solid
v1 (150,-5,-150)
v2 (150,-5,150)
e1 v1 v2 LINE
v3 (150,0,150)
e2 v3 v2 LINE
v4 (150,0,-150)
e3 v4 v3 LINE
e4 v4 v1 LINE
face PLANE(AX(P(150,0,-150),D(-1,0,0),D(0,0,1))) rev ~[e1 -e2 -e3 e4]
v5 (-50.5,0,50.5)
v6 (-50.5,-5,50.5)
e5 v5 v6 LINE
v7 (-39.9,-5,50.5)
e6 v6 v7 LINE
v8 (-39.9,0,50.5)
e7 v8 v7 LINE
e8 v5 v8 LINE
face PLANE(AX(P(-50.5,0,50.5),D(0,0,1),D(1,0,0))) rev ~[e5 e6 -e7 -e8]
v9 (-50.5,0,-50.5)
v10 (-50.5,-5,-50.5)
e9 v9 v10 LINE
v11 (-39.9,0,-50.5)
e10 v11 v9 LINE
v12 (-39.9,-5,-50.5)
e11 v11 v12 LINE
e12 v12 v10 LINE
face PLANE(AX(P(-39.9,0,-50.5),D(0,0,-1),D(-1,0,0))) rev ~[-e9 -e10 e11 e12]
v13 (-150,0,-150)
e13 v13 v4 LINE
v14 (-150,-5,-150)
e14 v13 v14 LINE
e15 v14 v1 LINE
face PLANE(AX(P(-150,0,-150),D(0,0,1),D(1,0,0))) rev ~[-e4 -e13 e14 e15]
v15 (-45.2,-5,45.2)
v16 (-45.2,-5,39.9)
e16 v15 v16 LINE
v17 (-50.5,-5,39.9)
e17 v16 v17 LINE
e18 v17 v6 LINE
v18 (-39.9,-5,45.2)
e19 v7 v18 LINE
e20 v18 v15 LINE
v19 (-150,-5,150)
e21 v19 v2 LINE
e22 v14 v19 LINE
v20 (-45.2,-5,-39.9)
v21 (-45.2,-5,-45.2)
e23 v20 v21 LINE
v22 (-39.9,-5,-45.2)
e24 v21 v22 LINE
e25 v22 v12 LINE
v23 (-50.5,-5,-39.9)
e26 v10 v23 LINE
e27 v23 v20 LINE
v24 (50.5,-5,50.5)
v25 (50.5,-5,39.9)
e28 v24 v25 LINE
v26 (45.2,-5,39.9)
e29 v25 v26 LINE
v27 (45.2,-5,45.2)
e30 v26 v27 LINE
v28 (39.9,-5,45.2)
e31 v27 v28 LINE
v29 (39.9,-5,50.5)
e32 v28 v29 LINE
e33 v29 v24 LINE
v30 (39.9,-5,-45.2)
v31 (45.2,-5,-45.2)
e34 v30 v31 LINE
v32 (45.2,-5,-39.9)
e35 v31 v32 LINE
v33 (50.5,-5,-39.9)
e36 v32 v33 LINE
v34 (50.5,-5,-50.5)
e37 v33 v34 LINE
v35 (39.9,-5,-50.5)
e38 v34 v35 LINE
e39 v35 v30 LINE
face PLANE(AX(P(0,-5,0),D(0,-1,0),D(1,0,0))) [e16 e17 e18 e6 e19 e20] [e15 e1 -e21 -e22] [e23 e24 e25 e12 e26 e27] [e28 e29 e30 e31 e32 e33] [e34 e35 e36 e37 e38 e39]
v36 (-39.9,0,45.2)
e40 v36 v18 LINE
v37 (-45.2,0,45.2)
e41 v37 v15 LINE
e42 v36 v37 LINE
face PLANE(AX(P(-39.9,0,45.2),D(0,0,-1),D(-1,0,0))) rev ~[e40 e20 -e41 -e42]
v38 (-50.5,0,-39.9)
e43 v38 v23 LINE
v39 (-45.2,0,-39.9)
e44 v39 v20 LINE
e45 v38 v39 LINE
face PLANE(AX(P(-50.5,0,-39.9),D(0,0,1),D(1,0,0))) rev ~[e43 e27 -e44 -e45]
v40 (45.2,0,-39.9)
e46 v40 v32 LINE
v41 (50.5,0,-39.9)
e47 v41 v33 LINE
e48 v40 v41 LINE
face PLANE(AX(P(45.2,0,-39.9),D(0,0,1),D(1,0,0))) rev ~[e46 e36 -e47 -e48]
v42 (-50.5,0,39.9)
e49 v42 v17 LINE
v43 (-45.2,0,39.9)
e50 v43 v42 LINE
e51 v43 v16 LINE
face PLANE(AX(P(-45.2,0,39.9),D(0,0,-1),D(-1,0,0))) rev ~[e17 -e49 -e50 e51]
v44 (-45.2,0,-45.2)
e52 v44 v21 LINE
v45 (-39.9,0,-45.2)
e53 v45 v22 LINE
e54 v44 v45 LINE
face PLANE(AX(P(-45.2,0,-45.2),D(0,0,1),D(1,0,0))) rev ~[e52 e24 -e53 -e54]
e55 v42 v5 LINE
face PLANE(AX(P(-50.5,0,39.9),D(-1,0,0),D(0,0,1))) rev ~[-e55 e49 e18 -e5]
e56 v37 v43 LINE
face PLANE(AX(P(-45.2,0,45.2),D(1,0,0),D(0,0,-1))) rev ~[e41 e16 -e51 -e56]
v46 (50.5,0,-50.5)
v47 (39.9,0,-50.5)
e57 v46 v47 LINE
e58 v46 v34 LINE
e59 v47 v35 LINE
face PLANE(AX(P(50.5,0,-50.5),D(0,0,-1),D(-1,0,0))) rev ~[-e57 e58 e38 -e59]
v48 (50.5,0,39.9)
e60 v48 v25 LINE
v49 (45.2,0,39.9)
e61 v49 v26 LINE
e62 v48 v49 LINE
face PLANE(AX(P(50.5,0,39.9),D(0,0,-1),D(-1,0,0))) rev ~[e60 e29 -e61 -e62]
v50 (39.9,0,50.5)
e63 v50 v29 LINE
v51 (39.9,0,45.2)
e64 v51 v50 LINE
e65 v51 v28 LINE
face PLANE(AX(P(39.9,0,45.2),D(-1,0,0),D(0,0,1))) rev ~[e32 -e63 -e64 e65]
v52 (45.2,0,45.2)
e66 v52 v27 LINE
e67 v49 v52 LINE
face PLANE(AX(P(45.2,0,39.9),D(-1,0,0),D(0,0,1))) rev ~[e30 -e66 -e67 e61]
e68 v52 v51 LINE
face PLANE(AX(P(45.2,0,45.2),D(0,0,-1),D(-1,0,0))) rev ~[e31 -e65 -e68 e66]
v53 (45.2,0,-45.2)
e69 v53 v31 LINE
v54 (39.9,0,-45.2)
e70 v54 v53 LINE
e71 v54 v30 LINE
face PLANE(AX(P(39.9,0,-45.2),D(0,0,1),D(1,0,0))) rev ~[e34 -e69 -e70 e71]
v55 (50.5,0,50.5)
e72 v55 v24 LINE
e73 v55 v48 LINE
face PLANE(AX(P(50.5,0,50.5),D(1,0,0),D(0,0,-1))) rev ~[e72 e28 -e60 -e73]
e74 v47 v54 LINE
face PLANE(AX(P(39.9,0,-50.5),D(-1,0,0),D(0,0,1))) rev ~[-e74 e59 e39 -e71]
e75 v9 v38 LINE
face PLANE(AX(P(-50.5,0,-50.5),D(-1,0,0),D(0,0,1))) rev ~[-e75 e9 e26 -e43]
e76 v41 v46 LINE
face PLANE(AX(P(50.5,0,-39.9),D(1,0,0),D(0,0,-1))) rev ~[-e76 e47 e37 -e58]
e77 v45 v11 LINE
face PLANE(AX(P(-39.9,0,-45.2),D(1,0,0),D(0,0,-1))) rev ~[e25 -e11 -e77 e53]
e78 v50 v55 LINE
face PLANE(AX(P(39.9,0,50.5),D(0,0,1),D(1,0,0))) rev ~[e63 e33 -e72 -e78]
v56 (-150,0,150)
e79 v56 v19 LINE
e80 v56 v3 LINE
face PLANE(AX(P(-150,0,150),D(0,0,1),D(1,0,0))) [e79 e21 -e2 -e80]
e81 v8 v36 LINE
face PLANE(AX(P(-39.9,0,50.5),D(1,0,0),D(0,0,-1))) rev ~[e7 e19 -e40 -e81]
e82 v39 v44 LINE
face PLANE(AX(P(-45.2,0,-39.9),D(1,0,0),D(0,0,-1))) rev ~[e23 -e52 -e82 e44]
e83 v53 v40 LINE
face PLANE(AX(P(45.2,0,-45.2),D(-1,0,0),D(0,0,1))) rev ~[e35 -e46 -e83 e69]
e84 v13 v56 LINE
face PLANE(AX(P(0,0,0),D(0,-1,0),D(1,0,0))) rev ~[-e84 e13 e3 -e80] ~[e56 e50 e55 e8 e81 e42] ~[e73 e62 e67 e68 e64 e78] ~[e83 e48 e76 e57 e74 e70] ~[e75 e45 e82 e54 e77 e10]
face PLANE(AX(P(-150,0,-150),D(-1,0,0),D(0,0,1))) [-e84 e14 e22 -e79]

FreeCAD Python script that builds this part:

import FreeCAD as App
import Part
import Sketcher

V = App.Vector
Q = App.Units.Quantity

doc = App.newDocument("Part")
params = doc.addObject("Spreadsheet::Sheet", "Params")
for row, (alias, value) in enumerate([
    ("sketch1_width", "300 mm"),
    ("sketch1_width2", "10.6 mm"),
    ("pad1_length", "5 mm"),
], start=1):
    params.set(f"A{row}", alias)
    params.set(f"B{row}", "=" + value)
    params.setAlias(f"B{row}", alias)

body = doc.addObject("PartDesign::Body", "Body")

# Sketch on XZ plane
sketch1 = body.newObject("Sketcher::SketchObject", "Sketch")
sketch1.AttachmentSupport = (doc.getObject("XZ_Plane"), [""])
sketch1.MapMode = "FlatFace"
sketch1.addGeometry([
    Part.LineSegment(V(-150, 150, 0), V(-150, -150, 0)),  # 0
    Part.LineSegment(V(-150, -150, 0), V(150, -150, 0)),  # 1
    Part.LineSegment(V(150, -150, 0), V(150, 150, 0)),  # 2
    Part.LineSegment(V(150, 150, 0), V(-150, 150, 0)),  # 3
    Part.LineSegment(V(-40, -50, 0), V(-50, -50, 0)),  # 4
    Part.LineSegment(V(-50, -50, 0), V(-50, -40, 0)),  # 5
    Part.LineSegment(V(-50, -40, 0), V(-45, -40, 0)),  # 6
    Part.LineSegment(V(-45, -40, 0), V(-45, -45, 0)),  # 7
    Part.LineSegment(V(-45, -45, 0), V(-40, -45, 0)),  # 8
    Part.LineSegment(V(-40, -45, 0), V(-40, -50, 0)),  # 9
    Part.LineSegment(V(50, -50, 0), V(40, -50, 0)),  # 10
    Part.LineSegment(V(40, -50, 0), V(40, -45, 0)),  # 11
    Part.LineSegment(V(40, -45, 0), V(45, -45, 0)),  # 12
    Part.LineSegment(V(45, -45, 0), V(45, -40, 0)),  # 13
    Part.LineSegment(V(45, -40, 0), V(50, -40, 0)),  # 14
    Part.LineSegment(V(50, -40, 0), V(50, -50, 0)),  # 15
    Part.LineSegment(V(-50, 40, 0), V(-50, 50, 0)),  # 16
    Part.LineSegment(V(-50, 50, 0), V(-40, 50, 0)),  # 17
    Part.LineSegment(V(-40, 50, 0), V(-40, 45, 0)),  # 18
    Part.LineSegment(V(-40, 45, 0), V(-45, 45, 0)),  # 19
    Part.LineSegment(V(-45, 45, 0), V(-45, 40, 0)),  # 20
    Part.LineSegment(V(-45, 40, 0), V(-50, 40, 0)),  # 21
    Part.LineSegment(V(40, 50, 0), V(50, 50, 0)),  # 22
    Part.LineSegment(V(50, 50, 0), V(50, 40, 0)),  # 23
    Part.LineSegment(V(50, 40, 0), V(45, 40, 0)),  # 24
    Part.LineSegment(V(45, 40, 0), V(45, 45, 0)),  # 25
    Part.LineSegment(V(45, 45, 0), V(40, 45, 0)),  # 26
    Part.LineSegment(V(40, 45, 0), V(40, 50, 0)),  # 27
], False)
sketch1.addConstraint([
    Sketcher.Constraint("Coincident", 0, 2, 1, 1),
    Sketcher.Constraint("Coincident", 1, 2, 2, 1),
    Sketcher.Constraint("Coincident", 2, 2, 3, 1),
    Sketcher.Constraint("Coincident", 3, 2, 0, 1),
    Sketcher.Constraint("Coincident", 4, 2, 5, 1),
    Sketcher.Constraint("Coincident", 5, 2, 6, 1),
    Sketcher.Constraint("Coincident", 6, 2, 7, 1),
    Sketcher.Constraint("Coincident", 7, 2, 8, 1),
    Sketcher.Constraint("Coincident", 8, 2, 9, 1),
    Sketcher.Constraint("Coincident", 9, 2, 4, 1),
    Sketcher.Constraint("Coincident", 10, 2, 11, 1),
    Sketcher.Constraint("Coincident", 11, 2, 12, 1),
    Sketcher.Constraint("Coincident", 12, 2, 13, 1),
    Sketcher.Constraint("Coincident", 13, 2, 14, 1),
    Sketcher.Constraint("Coincident", 14, 2, 15, 1),
    Sketcher.Constraint("Coincident", 15, 2, 10, 1),
    Sketcher.Constraint("Coincident", 16, 2, 17, 1),
    Sketcher.Constraint("Coincident", 17, 2, 18, 1),
    Sketcher.Constraint("Coincident", 18, 2, 19, 1),
    Sketcher.Constraint("Coincident", 19, 2, 20, 1),
    Sketcher.Constraint("Coincident", 20, 2, 21, 1),
    Sketcher.Constraint("Coincident", 21, 2, 16, 1),
    Sketcher.Constraint("Coincident", 22, 2, 23, 1),
    Sketcher.Constraint("Coincident", 23, 2, 24, 1),
    Sketcher.Constraint("Coincident", 24, 2, 25, 1),
    Sketcher.Constraint("Coincident", 25, 2, 26, 1),
    Sketcher.Constraint("Coincident", 26, 2, 27, 1),
    Sketcher.Constraint("Coincident", 27, 2, 22, 1),
    Sketcher.Constraint("Vertical", 0),
    Sketcher.Constraint("Horizontal", 1),
    Sketcher.Constraint("Vertical", 2),
    Sketcher.Constraint("Horizontal", 3),
    Sketcher.Constraint("Horizontal", 4),
    Sketcher.Constraint("Vertical", 5),
    Sketcher.Constraint("Horizontal", 6),
    Sketcher.Constraint("Vertical", 7),
    Sketcher.Constraint("Horizontal", 8),
    Sketcher.Constraint("Vertical", 9),
    Sketcher.Constraint("Horizontal", 10),
    Sketcher.Constraint("Vertical", 11),
    Sketcher.Constraint("Horizontal", 12),
    Sketcher.Constraint("Vertical", 13),
    Sketcher.Constraint("Horizontal", 14),
    Sketcher.Constraint("Vertical", 15),
    Sketcher.Constraint("Vertical", 16),
    Sketcher.Constraint("Horizontal", 17),
    Sketcher.Constraint("Vertical", 18),
    Sketcher.Constraint("Horizontal", 19),
    Sketcher.Constraint("Vertical", 20),
    Sketcher.Constraint("Horizontal", 21),
    Sketcher.Constraint("Horizontal", 22),
    Sketcher.Constraint("Vertical", 23),
    Sketcher.Constraint("Horizontal", 24),
    Sketcher.Constraint("Vertical", 25),
    Sketcher.Constraint("Horizontal", 26),
    Sketcher.Constraint("Vertical", 27),
    Sketcher.Constraint("Symmetric", 0, 2, 2, 2, -1, 1),
    Sketcher.Constraint("Symmetric", 15, 2, 16, 2, -1, 1),
    Sketcher.Constraint("Symmetric", 11, 2, 18, 2, -1, 1),
    Sketcher.Constraint("Symmetric", 13, 2, 20, 2, -1, 1),
    Sketcher.Constraint("Symmetric", 4, 2, 22, 2, -1, 1),
    Sketcher.Constraint("Symmetric", 6, 2, 24, 2, -1, 1),
    Sketcher.Constraint("Symmetric", 8, 2, 26, 2, -1, 1),
    Sketcher.Constraint("Symmetric", 9, 2, 10, 2, -2),
    Sketcher.Constraint("Symmetric", 7, 2, 12, 2, -2),
    Sketcher.Constraint("Symmetric", 5, 2, 14, 2, -2),
    Sketcher.Constraint("Equal", 6, 8),
    Sketcher.Constraint("Equal", 3, 0),
    Sketcher.Constraint("Equal", 22, 5),
    Sketcher.Constraint("Equal", 26, 7),
    Sketcher.Constraint("DistanceX", 1, 1, 1, 2, Q("300 mm")),
    Sketcher.Constraint("DistanceX", 4, 2, 4, 1, Q("10.6 mm")),
    Sketcher.Constraint("DistanceY", 4, 2, 16, 2, Q("101 mm")),
    Sketcher.Constraint("DistanceX", 4, 2, -1, 1, Q("50.5 mm")),
])
sketch1.setExpression("Constraints[70]", "Params.sketch1_width")
sketch1.setExpression("Constraints[71]", "Params.sketch1_width2")
pad1 = body.newObject("PartDesign::Pad", "Pad")
pad1.Profile = sketch1
pad1.setExpression("Length", "Params.pad1_length")

doc.recompute()
